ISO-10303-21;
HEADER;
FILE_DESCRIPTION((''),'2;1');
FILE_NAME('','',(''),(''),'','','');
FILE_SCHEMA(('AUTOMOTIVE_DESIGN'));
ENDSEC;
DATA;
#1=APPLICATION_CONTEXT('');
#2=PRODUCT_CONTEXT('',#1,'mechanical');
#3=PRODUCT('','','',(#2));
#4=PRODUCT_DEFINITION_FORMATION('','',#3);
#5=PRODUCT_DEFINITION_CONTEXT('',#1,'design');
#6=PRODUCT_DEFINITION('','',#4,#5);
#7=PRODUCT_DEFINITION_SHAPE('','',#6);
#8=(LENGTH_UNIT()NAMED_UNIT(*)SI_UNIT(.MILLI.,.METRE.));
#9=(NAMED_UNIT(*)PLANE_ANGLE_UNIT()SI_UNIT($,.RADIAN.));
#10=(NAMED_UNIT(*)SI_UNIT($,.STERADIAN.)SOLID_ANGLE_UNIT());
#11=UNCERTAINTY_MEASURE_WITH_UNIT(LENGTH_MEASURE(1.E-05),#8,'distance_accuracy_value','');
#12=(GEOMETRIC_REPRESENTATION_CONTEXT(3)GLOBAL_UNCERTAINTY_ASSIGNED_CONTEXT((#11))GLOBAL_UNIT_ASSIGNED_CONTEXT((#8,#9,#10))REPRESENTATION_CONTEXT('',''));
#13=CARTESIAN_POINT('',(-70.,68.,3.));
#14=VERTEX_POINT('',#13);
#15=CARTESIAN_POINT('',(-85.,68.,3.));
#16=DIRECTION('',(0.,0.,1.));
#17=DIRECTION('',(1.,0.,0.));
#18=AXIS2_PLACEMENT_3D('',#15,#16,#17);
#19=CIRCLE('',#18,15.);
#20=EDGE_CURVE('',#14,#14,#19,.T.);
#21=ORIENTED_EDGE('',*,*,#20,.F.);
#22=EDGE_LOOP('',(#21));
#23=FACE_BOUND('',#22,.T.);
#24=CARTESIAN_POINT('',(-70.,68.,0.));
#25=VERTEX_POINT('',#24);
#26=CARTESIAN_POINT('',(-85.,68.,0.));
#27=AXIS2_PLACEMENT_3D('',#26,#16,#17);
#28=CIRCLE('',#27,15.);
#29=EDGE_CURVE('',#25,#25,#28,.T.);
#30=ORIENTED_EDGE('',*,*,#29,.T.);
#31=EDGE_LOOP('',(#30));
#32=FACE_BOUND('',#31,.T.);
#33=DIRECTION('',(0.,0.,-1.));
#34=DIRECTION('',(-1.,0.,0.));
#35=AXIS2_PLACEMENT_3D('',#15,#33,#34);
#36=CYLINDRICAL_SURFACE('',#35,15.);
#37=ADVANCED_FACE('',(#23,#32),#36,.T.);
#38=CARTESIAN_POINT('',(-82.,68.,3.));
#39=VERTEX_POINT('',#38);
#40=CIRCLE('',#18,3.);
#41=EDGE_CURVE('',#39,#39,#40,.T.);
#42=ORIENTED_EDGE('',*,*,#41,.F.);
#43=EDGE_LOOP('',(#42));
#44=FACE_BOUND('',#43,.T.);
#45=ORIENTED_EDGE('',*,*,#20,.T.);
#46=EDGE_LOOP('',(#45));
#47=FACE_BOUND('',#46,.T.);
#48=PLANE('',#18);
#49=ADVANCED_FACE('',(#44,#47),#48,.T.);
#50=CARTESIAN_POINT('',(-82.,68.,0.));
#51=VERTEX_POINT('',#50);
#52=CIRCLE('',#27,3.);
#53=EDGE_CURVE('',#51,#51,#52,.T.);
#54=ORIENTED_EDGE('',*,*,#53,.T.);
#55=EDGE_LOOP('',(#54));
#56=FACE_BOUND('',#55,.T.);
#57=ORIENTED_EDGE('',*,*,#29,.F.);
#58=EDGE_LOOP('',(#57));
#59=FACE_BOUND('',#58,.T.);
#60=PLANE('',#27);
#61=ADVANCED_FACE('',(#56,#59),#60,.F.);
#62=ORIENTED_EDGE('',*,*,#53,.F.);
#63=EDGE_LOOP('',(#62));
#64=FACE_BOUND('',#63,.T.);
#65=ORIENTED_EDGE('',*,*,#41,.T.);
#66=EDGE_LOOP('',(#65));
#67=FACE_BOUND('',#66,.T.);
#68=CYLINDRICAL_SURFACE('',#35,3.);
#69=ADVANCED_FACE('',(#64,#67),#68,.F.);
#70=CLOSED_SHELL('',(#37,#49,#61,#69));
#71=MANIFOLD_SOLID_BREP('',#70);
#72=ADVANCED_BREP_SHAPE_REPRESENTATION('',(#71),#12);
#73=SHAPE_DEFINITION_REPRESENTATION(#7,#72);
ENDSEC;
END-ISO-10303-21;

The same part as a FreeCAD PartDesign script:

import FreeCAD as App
import Part
import Sketcher
Q = App.Units.Quantity

doc = App.newDocument("Part")
body = doc.addObject("PartDesign::Body", "Body")

sketch1 = body.newObject("Sketcher::SketchObject", "Sketch")
sketch1.AttachmentSupport = (doc.getObject("XY_Plane"), [""])
sketch1.MapMode = "FlatFace"
sketch1.addGeometry([
    Part.Circle(App.Vector(-85, 68, 0), App.Vector(0, 0, 1), 15),
    Part.Circle(App.Vector(-85, 68, 0), App.Vector(0, 0, 1), 3),
], False)
sketch1.addConstraint([
    Sketcher.Constraint("Coincident", 1, 3, 0, 3),
    Sketcher.Constraint("Diameter", 0, Q("30 mm")),
    Sketcher.Constraint("Diameter", 1, Q("6 mm")),
    Sketcher.Constraint("DistanceX", 0, 3, -1, 1, Q("85 mm")),
    Sketcher.Constraint("DistanceY", -1, 1, 0, 3, Q("68 mm")),
])
pad1 = body.newObject("PartDesign::Pad", "Pad")
pad1.Profile = sketch1
pad1.Length = 3

doc.recompute()
